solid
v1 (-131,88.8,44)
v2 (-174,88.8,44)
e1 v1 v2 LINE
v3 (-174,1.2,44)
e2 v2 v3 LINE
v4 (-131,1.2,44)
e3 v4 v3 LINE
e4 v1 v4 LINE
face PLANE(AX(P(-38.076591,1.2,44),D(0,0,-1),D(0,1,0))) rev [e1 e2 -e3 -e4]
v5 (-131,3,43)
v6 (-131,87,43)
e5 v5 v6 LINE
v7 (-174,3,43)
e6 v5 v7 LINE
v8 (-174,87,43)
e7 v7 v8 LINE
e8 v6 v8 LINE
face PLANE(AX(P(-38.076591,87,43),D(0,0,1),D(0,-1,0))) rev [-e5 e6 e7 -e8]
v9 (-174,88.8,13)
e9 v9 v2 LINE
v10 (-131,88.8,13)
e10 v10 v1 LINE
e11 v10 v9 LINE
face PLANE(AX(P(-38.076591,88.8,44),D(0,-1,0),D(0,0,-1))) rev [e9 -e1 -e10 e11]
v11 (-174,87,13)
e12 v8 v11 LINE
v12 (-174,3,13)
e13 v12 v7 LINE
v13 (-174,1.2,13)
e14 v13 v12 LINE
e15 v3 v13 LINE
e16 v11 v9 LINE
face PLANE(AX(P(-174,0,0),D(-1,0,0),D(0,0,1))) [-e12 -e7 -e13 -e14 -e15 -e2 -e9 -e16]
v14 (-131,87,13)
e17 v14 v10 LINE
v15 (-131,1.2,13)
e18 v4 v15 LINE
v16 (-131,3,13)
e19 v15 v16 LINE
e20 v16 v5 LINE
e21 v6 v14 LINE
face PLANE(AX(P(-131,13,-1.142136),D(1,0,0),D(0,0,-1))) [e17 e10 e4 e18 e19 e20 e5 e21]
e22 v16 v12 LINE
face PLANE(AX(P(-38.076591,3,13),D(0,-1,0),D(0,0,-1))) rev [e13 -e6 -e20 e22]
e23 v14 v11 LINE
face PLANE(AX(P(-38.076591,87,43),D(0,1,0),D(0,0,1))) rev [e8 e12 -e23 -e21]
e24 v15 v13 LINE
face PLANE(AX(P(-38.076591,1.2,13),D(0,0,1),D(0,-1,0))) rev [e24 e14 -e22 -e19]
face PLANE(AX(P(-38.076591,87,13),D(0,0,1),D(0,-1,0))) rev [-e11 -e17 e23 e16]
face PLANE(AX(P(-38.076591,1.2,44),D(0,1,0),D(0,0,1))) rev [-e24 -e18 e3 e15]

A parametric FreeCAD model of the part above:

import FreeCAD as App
import Part
import Sketcher
Q = App.Units.Quantity


def add_polygon(sketch, points):
    """Adds a closed chain of lines whose ends are joined by coincident constraints."""
    first, n = sketch.GeometryCount, len(points)
    for a, b in zip(points, points[1:] + points[:1]):
        sketch.addGeometry(Part.LineSegment(App.Vector(*a, 0), App.Vector(*b, 0)), False)
    for i in range(n):
        sketch.addConstraint(Sketcher.Constraint("Coincident", first + i, 2, first + (i + 1) % n, 1))

doc = App.newDocument("Part")
body = doc.addObject("PartDesign::Body", "Body")

sketch1 = body.newObject("Sketcher::SketchObject", "Sketch")
sketch1.AttachmentSupport = (doc.getObject("YZ_Plane"), [""])
sketch1.MapMode = "FlatFace"
sketch1.AttachmentOffset = App.Placement(App.Vector(0, 0, -174), App.Rotation())
add_polygon(sketch1, [(88.8, 13), (88.8, 44), (1.2, 44), (1.2, 13), (3, 13), (3, 43), (87, 43), (87, 13)])
sketch1.addConstraint(Sketcher.Constraint("Vertical", 0))
sketch1.addConstraint(Sketcher.Constraint("Horizontal", 1))
sketch1.addConstraint(Sketcher.Constraint("Vertical", 2))
sketch1.addConstraint(Sketcher.Constraint("Horizontal", 3))
sketch1.addConstraint(Sketcher.Constraint("Vertical", 4))
sketch1.addConstraint(Sketcher.Constraint("Horizontal", 5))
sketch1.addConstraint(Sketcher.Constraint("Vertical", 6))
sketch1.addConstraint(Sketcher.Constraint("Horizontal", 7))
sketch1.addConstraint(Sketcher.Constraint("Horizontal", 3, 2, 6, 2))
sketch1.addConstraint(Sketcher.Constraint("Equal", 3, 7))
sketch1.addConstraint(Sketcher.Constraint("DistanceX", 5, 1, 5, 2, Q("84 mm")))
sketch1.addConstraint(Sketcher.Constraint("DistanceY", 0, 1, 0, 2, Q("31 mm")))
sketch1.addConstraint(Sketcher.Constraint("DistanceY", 4, 1, 4, 2, Q("30 mm")))
sketch1.addConstraint(Sketcher.Constraint("DistanceX", 1, 2, 1, 1, Q("87.6 mm")))
sketch1.addConstraint(Sketcher.Constraint("DistanceY", -1, 1, 0, 2, Q("44 mm")))
sketch1.addConstraint(Sketcher.Constraint("DistanceX", -1, 1, 3, 2, Q("3 mm")))
pad1 = body.newObject("PartDesign::Pad", "Pad")
pad1.Profile = sketch1
pad1.Length = 43

doc.recompute()
